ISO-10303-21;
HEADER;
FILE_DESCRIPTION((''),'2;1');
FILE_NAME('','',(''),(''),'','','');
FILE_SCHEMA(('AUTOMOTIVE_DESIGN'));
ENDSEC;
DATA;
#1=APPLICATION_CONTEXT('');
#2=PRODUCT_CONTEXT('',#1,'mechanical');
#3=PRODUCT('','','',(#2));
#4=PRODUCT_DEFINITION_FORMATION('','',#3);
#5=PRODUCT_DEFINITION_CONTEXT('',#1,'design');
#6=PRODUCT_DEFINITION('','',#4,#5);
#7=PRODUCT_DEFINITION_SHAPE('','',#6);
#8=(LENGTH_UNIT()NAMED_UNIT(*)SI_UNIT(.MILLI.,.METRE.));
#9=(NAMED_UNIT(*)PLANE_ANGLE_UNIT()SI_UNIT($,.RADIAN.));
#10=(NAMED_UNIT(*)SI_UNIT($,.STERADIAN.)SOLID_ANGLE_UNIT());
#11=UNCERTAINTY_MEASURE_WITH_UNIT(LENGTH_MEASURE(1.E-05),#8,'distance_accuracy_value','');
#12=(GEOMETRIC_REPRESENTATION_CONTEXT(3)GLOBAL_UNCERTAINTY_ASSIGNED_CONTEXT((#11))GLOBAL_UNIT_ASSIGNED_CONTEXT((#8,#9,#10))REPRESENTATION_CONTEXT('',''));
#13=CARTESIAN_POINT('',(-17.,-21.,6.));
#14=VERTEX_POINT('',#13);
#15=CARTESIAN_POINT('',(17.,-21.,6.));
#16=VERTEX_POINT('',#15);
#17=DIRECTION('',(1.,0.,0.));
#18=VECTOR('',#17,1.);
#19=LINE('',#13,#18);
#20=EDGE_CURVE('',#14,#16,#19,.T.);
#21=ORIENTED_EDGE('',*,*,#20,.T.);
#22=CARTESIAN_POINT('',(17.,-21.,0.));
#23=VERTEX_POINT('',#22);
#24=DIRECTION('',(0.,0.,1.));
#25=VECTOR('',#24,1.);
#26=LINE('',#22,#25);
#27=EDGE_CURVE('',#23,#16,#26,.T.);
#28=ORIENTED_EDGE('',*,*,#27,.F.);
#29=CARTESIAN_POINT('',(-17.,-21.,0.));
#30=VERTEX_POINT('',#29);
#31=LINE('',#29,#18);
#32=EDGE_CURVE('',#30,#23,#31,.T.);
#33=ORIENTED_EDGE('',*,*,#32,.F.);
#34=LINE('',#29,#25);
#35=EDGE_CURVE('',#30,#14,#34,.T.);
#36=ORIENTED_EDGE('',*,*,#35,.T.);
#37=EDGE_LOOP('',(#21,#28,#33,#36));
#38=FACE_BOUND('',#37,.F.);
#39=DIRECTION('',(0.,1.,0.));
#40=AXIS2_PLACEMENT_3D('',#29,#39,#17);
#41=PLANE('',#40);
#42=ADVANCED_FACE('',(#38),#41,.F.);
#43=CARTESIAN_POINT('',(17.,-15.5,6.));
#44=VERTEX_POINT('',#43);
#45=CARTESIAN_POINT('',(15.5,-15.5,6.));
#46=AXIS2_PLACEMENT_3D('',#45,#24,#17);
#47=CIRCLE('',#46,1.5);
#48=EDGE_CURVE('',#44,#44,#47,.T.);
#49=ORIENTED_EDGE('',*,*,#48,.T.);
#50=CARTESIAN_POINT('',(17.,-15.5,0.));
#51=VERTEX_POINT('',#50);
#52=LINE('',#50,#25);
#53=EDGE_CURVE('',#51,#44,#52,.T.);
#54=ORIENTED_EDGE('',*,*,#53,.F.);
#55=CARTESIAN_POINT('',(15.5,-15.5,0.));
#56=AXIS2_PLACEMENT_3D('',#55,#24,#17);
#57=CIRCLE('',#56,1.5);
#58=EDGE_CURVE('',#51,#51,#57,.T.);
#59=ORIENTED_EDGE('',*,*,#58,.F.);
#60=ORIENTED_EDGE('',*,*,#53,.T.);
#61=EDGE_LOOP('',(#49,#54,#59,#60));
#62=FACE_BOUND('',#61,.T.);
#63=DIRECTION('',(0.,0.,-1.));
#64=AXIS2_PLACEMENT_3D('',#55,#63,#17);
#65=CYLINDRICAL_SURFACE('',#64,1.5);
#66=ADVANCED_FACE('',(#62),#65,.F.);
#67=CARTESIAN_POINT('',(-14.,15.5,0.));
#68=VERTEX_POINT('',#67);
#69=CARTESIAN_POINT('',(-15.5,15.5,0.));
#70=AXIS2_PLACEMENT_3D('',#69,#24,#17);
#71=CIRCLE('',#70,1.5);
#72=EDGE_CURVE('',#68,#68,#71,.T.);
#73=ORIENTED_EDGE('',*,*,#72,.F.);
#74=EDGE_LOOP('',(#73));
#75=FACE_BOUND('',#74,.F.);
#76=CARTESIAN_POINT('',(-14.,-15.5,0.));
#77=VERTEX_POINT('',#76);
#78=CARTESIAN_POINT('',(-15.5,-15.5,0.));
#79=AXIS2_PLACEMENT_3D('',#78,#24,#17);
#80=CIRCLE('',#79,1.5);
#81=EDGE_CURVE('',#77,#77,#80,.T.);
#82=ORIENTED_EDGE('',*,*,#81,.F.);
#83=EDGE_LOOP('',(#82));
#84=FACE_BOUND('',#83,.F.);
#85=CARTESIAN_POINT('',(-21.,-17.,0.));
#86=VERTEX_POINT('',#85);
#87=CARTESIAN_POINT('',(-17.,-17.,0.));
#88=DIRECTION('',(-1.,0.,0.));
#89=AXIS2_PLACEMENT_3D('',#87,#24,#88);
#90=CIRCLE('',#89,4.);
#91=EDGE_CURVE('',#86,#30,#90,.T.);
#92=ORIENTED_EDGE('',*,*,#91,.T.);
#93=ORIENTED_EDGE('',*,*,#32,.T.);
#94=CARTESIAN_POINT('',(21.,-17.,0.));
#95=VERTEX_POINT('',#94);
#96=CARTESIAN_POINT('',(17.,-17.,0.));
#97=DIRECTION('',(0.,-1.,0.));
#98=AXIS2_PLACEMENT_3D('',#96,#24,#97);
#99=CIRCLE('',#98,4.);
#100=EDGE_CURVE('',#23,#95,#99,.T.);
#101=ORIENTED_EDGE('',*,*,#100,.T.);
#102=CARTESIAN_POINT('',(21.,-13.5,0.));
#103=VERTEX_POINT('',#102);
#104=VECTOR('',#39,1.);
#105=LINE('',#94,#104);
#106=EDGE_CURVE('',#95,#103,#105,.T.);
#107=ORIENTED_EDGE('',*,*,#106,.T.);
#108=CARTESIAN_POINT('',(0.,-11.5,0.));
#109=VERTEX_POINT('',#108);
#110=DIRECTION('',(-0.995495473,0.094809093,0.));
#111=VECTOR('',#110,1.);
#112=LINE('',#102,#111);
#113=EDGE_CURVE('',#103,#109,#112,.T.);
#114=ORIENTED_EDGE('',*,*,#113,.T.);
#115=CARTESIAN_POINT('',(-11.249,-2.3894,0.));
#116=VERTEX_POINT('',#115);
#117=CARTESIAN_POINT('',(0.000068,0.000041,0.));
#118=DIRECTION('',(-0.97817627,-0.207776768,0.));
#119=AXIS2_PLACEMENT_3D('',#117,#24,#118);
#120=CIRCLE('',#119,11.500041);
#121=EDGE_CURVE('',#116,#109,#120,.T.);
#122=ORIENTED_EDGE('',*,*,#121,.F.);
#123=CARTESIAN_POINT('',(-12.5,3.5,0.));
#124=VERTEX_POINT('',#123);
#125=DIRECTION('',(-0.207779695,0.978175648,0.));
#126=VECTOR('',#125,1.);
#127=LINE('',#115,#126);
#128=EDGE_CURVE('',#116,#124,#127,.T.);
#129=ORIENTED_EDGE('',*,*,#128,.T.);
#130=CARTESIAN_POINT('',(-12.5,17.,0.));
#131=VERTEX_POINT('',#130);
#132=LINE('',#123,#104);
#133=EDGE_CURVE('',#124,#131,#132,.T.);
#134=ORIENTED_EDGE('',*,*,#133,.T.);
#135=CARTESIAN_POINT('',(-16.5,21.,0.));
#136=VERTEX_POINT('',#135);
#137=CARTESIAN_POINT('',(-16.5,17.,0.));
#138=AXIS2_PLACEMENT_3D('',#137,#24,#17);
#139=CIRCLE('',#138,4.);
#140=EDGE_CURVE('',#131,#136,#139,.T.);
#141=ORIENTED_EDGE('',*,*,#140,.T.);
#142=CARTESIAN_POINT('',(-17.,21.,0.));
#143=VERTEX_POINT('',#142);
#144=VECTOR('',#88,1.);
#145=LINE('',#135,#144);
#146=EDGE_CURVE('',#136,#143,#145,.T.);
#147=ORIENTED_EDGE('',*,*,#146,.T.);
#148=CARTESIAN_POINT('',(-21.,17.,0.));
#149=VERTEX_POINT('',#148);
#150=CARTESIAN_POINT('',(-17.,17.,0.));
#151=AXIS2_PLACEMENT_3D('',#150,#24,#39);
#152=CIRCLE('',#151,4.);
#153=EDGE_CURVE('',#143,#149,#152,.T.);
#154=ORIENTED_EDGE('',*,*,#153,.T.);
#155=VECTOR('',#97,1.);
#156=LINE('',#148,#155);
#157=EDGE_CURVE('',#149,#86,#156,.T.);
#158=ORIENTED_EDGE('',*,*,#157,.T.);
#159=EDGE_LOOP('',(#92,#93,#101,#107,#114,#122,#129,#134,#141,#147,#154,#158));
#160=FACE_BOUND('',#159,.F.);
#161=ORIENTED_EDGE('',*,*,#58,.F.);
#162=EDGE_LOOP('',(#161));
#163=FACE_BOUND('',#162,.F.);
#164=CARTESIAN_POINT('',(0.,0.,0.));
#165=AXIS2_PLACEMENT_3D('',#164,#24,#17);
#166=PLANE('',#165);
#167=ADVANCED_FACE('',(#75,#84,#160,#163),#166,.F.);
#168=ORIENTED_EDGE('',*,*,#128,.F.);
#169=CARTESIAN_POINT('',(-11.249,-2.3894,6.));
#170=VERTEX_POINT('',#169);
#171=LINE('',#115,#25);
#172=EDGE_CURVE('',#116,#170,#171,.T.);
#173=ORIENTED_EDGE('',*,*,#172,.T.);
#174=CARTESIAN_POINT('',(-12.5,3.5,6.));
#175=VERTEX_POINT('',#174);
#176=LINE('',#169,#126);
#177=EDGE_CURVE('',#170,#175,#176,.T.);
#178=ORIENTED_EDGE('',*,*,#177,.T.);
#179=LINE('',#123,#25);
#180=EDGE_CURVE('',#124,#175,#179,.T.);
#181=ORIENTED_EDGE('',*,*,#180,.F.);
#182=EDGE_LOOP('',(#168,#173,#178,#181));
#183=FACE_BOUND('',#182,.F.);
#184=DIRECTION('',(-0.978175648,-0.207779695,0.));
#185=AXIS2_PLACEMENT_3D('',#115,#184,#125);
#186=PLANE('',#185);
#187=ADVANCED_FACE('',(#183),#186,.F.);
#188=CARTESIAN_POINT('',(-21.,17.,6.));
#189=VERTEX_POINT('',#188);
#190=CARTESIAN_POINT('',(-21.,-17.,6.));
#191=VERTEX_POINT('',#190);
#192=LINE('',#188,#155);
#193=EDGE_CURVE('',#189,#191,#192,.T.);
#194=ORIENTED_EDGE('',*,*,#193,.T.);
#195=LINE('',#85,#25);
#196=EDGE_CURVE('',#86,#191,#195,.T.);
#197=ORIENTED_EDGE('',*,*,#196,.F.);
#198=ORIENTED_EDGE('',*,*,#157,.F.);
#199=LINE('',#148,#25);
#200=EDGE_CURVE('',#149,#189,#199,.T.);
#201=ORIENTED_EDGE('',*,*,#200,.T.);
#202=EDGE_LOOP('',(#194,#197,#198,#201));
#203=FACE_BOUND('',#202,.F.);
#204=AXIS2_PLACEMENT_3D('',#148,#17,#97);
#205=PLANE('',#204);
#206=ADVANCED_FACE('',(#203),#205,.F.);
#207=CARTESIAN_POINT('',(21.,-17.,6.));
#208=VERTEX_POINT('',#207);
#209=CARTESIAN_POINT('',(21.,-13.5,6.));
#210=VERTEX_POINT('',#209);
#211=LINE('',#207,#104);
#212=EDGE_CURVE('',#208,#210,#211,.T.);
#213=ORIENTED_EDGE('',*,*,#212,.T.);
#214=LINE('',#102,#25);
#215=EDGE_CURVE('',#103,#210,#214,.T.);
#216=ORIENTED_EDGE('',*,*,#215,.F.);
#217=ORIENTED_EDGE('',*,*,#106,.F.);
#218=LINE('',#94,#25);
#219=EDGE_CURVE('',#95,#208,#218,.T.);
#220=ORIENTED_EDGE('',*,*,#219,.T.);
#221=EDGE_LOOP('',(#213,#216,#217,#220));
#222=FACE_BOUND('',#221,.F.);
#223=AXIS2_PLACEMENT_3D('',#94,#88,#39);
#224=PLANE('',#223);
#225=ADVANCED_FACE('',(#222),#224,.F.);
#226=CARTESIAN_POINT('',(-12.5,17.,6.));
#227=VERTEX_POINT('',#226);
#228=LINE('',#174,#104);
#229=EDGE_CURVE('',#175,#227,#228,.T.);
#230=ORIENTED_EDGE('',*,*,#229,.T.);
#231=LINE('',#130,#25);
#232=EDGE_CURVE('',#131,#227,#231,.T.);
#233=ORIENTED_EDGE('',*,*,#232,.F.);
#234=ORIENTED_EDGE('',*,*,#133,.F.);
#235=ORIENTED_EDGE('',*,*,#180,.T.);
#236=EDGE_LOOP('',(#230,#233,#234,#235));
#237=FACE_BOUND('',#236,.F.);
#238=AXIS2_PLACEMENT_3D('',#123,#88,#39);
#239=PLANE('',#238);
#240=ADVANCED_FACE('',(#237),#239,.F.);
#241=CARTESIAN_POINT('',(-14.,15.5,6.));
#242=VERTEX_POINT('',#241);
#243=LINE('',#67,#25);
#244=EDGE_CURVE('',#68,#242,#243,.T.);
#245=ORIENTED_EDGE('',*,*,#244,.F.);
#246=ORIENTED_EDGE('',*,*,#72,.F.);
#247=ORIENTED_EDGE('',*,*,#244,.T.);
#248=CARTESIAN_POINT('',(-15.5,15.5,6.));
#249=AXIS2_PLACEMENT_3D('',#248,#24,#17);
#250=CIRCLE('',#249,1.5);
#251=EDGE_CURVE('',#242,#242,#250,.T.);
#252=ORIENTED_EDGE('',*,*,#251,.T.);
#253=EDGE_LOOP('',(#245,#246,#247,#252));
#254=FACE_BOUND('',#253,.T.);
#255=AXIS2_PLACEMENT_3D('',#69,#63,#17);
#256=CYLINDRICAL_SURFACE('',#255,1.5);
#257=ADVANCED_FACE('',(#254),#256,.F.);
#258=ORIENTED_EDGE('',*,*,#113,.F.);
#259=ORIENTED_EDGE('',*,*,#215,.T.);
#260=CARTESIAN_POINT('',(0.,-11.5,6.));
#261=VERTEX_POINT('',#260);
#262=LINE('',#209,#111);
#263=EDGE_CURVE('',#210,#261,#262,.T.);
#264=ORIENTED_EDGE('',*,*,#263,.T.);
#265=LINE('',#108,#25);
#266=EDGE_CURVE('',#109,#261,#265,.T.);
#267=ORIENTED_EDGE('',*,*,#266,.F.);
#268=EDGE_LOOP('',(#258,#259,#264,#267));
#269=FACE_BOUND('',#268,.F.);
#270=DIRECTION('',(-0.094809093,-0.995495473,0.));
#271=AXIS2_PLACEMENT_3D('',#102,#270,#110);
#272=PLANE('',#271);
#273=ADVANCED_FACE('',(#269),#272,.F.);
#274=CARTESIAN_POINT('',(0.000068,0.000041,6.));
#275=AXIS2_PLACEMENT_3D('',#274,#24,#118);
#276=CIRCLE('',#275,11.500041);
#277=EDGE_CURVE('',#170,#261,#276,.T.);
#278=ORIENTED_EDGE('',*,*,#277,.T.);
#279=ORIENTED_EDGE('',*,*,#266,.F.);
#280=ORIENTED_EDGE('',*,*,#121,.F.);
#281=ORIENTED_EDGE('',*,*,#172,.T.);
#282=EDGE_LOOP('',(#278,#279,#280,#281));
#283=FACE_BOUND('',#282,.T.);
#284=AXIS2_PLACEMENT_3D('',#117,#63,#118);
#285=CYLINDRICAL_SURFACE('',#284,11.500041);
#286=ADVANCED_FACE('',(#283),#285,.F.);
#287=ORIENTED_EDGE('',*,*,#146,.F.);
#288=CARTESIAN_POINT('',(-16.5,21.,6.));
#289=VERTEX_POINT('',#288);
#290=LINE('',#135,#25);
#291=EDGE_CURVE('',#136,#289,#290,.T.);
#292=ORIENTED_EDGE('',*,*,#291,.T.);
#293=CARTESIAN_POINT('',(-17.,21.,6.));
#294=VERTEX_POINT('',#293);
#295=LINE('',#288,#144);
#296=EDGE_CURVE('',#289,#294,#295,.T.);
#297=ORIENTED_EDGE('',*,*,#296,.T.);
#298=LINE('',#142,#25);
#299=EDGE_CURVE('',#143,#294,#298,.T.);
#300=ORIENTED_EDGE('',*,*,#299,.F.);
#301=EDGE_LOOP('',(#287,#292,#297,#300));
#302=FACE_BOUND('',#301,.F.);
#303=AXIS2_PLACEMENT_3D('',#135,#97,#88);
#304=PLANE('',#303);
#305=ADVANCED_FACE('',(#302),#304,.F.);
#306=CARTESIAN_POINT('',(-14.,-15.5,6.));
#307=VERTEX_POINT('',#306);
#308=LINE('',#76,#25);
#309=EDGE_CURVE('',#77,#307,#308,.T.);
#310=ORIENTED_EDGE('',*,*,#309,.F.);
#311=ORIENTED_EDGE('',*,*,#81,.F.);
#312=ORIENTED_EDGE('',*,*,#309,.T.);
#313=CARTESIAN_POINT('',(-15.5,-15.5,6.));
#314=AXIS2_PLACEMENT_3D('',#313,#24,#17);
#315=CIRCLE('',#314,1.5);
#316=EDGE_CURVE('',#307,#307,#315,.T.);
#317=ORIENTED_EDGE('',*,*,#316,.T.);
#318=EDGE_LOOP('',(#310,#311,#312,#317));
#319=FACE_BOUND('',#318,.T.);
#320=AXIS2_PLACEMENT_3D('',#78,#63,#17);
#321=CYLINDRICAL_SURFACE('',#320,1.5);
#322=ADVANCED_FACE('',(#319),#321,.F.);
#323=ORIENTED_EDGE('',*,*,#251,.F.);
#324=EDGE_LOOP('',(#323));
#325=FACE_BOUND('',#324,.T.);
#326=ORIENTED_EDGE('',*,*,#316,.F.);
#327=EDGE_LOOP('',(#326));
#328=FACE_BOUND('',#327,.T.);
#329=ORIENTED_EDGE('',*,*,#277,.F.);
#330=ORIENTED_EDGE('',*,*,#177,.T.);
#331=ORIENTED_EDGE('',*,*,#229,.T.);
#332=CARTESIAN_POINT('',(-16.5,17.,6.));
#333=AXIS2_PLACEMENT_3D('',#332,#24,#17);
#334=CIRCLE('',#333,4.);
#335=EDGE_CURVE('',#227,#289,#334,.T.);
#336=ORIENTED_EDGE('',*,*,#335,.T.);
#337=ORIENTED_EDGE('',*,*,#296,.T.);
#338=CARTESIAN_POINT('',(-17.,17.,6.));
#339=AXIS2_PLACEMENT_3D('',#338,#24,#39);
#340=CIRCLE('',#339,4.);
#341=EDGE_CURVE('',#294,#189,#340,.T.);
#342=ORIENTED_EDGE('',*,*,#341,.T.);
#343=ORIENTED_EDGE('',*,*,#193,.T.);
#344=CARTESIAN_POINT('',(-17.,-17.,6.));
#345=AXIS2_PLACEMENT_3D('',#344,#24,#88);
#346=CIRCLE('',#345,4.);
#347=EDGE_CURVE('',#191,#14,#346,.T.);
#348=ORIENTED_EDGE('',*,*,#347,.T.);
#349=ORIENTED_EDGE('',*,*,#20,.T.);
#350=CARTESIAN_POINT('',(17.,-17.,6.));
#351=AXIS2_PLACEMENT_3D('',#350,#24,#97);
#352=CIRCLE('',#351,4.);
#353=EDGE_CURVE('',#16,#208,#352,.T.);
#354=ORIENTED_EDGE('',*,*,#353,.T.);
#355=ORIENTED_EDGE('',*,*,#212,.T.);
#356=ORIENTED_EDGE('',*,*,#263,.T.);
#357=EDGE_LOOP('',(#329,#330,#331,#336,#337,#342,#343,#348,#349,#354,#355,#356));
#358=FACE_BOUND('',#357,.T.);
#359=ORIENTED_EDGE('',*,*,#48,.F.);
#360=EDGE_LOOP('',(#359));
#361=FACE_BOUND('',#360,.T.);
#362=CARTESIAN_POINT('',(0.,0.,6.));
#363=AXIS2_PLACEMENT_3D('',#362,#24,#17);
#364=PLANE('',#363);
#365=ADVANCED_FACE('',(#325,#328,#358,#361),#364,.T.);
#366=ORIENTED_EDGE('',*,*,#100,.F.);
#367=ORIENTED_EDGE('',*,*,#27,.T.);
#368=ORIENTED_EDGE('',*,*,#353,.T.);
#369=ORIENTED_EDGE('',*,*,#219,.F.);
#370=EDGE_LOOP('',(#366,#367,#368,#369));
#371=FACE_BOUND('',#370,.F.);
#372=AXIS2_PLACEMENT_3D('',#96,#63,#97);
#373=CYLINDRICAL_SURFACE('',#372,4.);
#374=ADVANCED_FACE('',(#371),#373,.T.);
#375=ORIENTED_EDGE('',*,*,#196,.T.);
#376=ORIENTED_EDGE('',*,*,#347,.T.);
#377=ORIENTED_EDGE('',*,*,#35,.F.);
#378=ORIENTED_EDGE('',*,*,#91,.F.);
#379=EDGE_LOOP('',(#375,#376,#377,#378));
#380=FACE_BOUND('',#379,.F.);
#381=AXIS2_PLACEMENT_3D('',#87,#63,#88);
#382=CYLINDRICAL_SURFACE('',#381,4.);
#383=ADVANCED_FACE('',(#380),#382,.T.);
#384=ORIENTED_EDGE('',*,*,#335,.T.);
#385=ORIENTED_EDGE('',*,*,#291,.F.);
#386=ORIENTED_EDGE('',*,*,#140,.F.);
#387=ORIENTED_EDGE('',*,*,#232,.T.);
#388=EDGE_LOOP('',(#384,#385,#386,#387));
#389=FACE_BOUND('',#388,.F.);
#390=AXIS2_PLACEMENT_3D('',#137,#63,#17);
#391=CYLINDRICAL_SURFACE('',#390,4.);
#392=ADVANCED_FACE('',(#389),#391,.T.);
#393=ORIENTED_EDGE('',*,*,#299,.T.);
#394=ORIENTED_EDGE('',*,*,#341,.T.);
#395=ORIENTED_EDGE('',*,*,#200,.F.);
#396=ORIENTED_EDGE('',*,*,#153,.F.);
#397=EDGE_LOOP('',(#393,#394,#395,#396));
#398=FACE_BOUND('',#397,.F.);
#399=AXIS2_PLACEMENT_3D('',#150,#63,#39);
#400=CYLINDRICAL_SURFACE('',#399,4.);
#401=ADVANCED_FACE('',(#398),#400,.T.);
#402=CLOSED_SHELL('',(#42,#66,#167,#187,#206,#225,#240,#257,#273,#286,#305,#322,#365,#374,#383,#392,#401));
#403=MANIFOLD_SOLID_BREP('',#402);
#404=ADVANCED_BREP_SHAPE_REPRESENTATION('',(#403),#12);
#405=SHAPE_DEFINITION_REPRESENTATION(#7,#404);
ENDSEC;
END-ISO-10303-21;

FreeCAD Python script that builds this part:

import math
import FreeCAD as App
import Part
import Sketcher

V = App.Vector
Q = App.Units.Quantity

doc = App.newDocument("Part")
body = doc.addObject("PartDesign::Body", "Body")

sketch1 = body.newObject("Sketcher::SketchObject", "Sketch")
sketch1.AttachmentSupport = (doc.getObject("XY_Plane"), [""])
sketch1.MapMode = "FlatFace"
sketch1.addGeometry(Part.LineSegment(V(21, -17, 0), V(21, -13.5, 0)), False)
sketch1.addGeometry(Part.LineSegment(V(21, -13.5, 0), V(0, -11.5, 0)), False)
sketch1.addGeometry(Part.ArcOfCircle(Part.Circle(V(0, 0, 0), V(0, 0, 1), 11.5), math.radians(-168), math.radians(-90)), False)
sketch1.addGeometry(Part.LineSegment(V(-11.2, -2.4, 0), V(-12.5, 3.5, 0)), False)
sketch1.addGeometry(Part.LineSegment(V(-12.5, 3.5, 0), V(-12.5, 17, 0)), False)
sketch1.addGeometry(Part.ArcOfCircle(Part.Circle(V(-16.5, 17, 0), V(0, 0, 1), 4), math.radians(0), math.radians(90)), False)
sketch1.addGeometry(Part.LineSegment(V(-16.5, 21, 0), V(-17, 21, 0)), False)
sketch1.addGeometry(Part.ArcOfCircle(Part.Circle(V(-17, 17, 0), V(0, 0, 1), 4), math.radians(90), math.radians(180)), False)
sketch1.addGeometry(Part.LineSegment(V(-21, 17, 0), V(-21, -17, 0)), False)
sketch1.addGeometry(Part.ArcOfCircle(Part.Circle(V(-17, -17, 0), V(0, 0, 1), 4), math.radians(180), math.radians(270)), False)
sketch1.addGeometry(Part.LineSegment(V(-17, -21, 0), V(17, -21, 0)), False)
sketch1.addGeometry(Part.ArcOfCircle(Part.Circle(V(17, -17, 0), V(0, 0, 1), 4), math.radians(-90), math.radians(0)), False)
sketch1.addGeometry(Part.Circle(V(-15.5, -15.5, 0), V(0, 0, 1), 1.5), False)
sketch1.addGeometry(Part.Circle(V(15.5, -15.5, 0), V(0, 0, 1), 1.5), False)
sketch1.addGeometry(Part.Circle(V(-15.5, 15.5, 0), V(0, 0, 1), 1.5), False)
sketch1.addConstraint(Sketcher.Constraint("Coincident", 0, 2, 1, 1))
sketch1.addConstraint(Sketcher.Constraint("Coincident", 1, 2, 2, 2))
sketch1.addConstraint(Sketcher.Constraint("Tangent", 2, 1, 3, 1))
sketch1.addConstraint(Sketcher.Constraint("Coincident", 3, 2, 4, 1))
sketch1.addConstraint(Sketcher.Constraint("Tangent", 4, 2, 5, 1))
sketch1.addConstraint(Sketcher.Constraint("Tangent", 5, 2, 6, 1))
sketch1.addConstraint(Sketcher.Constraint("Tangent", 6, 2, 7, 1))
sketch1.addConstraint(Sketcher.Constraint("Tangent", 7, 2, 8, 1))
sketch1.addConstraint(Sketcher.Constraint("Tangent", 8, 2, 9, 1))
sketch1.addConstraint(Sketcher.Constraint("Tangent", 9, 2, 10, 1))
sketch1.addConstraint(Sketcher.Constraint("Tangent", 10, 2, 11, 1))
sketch1.addConstraint(Sketcher.Constraint("Tangent", 11, 2, 0, 1))
sketch1.addConstraint(Sketcher.Constraint("Vertical", 0))
sketch1.addConstraint(Sketcher.Constraint("Vertical", 4))
sketch1.addConstraint(Sketcher.Constraint("Horizontal", 6))
sketch1.addConstraint(Sketcher.Constraint("Vertical", 8))
sketch1.addConstraint(Sketcher.Constraint("Horizontal", 10))
sketch1.addConstraint(Sketcher.Constraint("Coincident", 2, 3, -1, 1))
sketch1.addConstraint(Sketcher.Constraint("Equal", 5, 7))
sketch1.addConstraint(Sketcher.Constraint("Equal", 7, 9))
sketch1.addConstraint(Sketcher.Constraint("Equal", 9, 11))
sketch1.addConstraint(Sketcher.Constraint("Equal", 12, 13))
sketch1.addConstraint(Sketcher.Constraint("Equal", 13, 14))
sketch1.addConstraint(Sketcher.Constraint("Symmetric", 7, 3, 11, 3, -1, 1))
sketch1.addConstraint(Sketcher.Constraint("Symmetric", 13, 3, 14, 3, -1, 1))
sketch1.addConstraint(Sketcher.Constraint("Symmetric", 12, 3, 13, 3, -2))
sketch1.addConstraint(Sketcher.Constraint("PointOnObject", 1, 2, -2))
sketch1.addConstraint(Sketcher.Constraint("Equal", 10, 8))
sketch1.addConstraint(Sketcher.Constraint("Diameter", 12, Q("3 mm")))
sketch1.addConstraint(Sketcher.Constraint("Radius", 5, Q("4 mm")))
sketch1.addConstraint(Sketcher.Constraint("Radius", 2, Q("11.5 mm")))
sketch1.addConstraint(Sketcher.Constraint("DistanceX", 10, 1, 10, 2, Q("34 mm")))
sketch1.addConstraint(Sketcher.Constraint("DistanceX", 6, 2, 6, 1, Q("0.5 mm")))
sketch1.addConstraint(Sketcher.Constraint("DistanceY", 0, 1, 0, 2, Q("3.5 mm")))
sketch1.addConstraint(Sketcher.Constraint("DistanceY", 4, 1, 4, 2, Q("13.5 mm")))
sketch1.addConstraint(Sketcher.Constraint("DistanceX", 5, 3, 12, 3, Q("1 mm")))
sketch1.addConstraint(Sketcher.Constraint("DistanceY", 12, 3, 14, 3, Q("31 mm")))
pad1 = body.newObject("PartDesign::Pad", "Pad")
pad1.Profile = sketch1
pad1.Length = 6

doc.recompute()
